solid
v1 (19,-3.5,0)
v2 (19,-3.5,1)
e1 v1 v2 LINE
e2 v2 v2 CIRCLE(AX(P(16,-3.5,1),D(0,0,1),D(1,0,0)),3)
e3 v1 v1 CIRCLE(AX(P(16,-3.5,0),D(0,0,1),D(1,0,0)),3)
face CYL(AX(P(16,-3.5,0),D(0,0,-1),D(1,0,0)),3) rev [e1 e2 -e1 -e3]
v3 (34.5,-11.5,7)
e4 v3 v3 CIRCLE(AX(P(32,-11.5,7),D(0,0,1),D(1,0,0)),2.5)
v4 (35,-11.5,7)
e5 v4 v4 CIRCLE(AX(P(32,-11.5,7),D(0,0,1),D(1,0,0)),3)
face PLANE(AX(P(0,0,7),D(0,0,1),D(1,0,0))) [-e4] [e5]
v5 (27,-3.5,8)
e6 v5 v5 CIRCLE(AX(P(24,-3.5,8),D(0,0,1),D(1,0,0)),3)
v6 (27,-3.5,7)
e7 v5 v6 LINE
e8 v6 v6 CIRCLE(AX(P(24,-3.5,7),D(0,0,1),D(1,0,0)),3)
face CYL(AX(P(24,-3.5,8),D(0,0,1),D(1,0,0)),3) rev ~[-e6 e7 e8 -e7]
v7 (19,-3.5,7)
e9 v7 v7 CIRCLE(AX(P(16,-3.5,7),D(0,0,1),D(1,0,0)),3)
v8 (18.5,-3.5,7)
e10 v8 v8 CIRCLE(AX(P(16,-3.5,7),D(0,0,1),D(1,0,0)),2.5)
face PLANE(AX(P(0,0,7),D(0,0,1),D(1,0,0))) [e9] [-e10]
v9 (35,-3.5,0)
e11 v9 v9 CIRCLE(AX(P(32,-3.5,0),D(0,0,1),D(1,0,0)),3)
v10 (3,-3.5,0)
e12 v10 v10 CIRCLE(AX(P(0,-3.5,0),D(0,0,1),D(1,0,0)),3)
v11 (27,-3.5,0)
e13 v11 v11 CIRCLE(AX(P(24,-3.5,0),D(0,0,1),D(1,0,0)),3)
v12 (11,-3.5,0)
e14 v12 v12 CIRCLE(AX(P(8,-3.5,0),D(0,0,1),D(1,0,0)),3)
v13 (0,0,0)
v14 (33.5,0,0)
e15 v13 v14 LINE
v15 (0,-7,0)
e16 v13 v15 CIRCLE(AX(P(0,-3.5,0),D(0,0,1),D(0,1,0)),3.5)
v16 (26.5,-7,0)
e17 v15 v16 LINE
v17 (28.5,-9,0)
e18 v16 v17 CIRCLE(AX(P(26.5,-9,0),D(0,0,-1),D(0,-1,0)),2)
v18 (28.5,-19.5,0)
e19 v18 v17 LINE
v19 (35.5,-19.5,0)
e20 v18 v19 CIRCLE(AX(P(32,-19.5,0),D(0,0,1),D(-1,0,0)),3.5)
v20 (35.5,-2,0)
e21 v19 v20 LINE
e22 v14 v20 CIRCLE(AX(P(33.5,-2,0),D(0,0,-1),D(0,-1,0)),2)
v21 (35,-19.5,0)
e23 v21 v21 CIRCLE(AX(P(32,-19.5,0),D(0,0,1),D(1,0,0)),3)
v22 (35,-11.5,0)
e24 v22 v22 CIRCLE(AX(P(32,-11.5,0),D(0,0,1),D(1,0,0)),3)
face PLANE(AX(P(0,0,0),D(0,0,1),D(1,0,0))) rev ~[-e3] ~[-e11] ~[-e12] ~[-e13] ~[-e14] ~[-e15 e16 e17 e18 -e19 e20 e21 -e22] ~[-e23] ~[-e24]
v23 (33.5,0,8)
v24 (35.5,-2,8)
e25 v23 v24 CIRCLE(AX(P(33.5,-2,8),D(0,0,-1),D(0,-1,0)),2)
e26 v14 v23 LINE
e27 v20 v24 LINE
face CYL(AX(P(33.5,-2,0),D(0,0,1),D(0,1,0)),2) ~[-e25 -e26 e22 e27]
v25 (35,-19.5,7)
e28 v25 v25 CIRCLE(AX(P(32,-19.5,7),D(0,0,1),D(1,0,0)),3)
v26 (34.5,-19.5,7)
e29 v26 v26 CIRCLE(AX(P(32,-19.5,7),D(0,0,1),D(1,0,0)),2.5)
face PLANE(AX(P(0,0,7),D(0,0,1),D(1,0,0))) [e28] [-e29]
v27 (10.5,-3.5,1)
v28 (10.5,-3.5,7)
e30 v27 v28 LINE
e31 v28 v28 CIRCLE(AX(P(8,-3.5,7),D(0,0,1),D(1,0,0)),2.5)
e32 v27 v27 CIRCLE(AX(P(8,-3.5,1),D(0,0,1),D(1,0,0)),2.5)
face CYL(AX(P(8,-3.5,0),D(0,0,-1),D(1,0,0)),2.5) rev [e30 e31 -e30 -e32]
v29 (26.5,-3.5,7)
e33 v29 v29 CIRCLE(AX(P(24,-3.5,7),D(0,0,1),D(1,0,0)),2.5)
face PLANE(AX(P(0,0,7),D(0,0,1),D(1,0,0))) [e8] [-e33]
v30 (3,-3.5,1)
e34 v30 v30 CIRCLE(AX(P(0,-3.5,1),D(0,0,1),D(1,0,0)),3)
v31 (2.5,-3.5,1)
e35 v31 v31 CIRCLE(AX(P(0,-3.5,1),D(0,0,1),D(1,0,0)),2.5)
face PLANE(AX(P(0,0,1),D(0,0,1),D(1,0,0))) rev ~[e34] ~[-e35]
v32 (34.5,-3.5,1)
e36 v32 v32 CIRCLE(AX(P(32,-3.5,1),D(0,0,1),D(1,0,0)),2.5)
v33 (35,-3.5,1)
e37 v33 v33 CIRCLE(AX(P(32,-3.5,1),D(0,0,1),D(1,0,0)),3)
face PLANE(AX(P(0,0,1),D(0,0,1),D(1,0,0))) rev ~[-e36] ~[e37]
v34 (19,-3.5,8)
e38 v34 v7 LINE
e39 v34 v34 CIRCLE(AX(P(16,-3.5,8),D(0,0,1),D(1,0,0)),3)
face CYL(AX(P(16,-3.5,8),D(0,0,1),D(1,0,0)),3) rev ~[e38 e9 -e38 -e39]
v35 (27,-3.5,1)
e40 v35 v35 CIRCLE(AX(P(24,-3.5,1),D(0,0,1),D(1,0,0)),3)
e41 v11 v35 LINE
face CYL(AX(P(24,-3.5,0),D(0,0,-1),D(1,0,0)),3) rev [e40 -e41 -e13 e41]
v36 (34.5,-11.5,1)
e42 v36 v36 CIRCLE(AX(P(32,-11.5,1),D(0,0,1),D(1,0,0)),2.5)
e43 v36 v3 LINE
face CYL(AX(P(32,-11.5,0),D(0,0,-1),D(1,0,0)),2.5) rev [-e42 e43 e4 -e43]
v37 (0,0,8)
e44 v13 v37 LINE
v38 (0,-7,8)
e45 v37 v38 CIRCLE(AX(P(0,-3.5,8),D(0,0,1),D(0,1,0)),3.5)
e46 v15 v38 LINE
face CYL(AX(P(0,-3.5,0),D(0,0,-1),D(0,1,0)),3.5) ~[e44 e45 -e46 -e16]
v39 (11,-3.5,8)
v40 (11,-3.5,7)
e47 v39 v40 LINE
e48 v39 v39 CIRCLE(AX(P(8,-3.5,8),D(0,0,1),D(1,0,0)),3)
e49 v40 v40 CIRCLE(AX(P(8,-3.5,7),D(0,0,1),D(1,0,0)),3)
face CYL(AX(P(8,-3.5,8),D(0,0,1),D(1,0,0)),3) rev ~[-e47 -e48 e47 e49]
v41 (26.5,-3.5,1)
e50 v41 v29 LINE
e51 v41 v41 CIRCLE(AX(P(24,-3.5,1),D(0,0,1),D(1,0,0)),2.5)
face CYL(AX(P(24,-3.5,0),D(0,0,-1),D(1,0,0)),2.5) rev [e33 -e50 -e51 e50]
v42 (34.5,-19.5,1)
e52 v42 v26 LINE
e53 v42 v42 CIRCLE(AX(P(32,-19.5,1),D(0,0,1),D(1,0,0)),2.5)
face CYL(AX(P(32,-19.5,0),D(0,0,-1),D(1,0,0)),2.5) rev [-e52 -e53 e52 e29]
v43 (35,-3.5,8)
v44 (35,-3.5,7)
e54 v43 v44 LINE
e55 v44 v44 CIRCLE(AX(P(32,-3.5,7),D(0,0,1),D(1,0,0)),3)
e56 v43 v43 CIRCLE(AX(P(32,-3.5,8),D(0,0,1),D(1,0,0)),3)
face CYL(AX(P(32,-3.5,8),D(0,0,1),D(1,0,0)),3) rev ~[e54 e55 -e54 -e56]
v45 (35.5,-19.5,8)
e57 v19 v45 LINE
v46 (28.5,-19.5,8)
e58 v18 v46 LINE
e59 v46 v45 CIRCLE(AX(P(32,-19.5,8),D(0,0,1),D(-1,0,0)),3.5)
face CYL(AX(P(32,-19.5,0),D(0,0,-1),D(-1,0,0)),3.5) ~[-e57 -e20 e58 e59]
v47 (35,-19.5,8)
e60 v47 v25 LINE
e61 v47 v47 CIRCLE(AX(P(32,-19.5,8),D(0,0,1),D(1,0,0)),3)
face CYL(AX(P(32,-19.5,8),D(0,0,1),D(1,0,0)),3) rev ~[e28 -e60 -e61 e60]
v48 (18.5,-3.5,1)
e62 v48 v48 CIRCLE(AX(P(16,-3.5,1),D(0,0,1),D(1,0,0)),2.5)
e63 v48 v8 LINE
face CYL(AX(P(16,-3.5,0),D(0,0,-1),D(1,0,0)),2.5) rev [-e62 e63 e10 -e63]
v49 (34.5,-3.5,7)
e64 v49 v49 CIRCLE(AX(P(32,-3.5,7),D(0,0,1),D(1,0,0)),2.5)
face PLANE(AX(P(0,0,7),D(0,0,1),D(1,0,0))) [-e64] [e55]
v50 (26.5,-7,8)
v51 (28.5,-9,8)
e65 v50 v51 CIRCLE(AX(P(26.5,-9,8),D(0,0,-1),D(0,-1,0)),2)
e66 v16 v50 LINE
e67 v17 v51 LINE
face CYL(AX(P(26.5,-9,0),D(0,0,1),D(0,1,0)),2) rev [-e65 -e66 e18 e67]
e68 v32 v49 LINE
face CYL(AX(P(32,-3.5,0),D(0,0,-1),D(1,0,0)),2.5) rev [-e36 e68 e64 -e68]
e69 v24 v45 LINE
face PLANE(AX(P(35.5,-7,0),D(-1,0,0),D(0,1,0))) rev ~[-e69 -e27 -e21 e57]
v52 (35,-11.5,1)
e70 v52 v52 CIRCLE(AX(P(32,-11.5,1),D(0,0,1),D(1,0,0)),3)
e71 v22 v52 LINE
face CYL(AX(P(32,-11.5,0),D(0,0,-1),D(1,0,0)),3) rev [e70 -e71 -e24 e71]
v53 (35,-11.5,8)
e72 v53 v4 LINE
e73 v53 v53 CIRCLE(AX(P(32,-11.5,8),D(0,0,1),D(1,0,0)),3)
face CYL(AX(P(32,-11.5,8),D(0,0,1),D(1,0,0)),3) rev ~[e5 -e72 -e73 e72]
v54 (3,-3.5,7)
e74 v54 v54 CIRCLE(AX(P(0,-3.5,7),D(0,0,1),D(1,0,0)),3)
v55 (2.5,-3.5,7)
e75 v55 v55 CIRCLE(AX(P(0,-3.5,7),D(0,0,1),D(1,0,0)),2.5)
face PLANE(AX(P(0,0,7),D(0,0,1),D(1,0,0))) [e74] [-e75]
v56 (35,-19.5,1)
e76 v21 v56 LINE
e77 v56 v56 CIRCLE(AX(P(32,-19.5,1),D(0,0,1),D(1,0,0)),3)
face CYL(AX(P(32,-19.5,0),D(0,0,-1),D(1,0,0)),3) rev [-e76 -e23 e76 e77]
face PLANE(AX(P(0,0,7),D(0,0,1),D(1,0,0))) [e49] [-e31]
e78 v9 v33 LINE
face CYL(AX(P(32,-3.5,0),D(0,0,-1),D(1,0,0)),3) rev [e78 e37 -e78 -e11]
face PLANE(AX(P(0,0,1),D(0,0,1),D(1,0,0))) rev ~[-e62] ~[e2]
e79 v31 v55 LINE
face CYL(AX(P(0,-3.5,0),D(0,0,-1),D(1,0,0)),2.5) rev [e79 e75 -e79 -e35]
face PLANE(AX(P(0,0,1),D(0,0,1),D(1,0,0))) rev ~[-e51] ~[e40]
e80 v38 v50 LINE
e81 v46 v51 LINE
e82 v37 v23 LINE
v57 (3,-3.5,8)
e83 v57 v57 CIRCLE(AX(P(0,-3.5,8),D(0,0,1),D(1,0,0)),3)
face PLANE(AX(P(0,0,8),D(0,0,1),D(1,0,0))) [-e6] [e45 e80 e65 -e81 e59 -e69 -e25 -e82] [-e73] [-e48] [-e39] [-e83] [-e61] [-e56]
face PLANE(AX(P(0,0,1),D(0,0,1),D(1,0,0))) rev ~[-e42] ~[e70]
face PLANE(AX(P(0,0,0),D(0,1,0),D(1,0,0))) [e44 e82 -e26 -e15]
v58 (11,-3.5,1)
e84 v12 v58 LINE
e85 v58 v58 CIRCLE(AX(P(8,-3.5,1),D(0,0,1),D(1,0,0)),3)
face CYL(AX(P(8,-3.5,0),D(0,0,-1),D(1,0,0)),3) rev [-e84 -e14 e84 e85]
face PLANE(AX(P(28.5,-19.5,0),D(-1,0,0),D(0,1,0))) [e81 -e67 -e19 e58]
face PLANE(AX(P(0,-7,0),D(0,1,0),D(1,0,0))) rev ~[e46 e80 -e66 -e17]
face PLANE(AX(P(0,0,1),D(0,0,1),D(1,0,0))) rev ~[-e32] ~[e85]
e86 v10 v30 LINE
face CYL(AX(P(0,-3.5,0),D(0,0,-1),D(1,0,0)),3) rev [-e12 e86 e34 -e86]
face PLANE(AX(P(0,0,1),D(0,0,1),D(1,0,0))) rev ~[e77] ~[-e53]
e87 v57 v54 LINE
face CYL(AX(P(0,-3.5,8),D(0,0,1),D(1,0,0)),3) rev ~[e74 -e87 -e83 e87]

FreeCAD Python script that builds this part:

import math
import FreeCAD as App
import Part
import Sketcher
from FreeCAD import Vector
Q = App.Units.Quantity


def edges_at(feature, points):
    """Names of the edges that pass closest to the given points."""
    edges = feature.Shape.Edges
    near = lambda p: min(range(len(edges)), key=lambda i: edges[i].distToShape(Part.Vertex(*p))[0])
    return sorted({f"Edge{near(p) + 1}" for p in points})

doc = App.newDocument("Part")
body = doc.addObject("PartDesign::Body", "Body")

# Sketch on XY plane
sketch1 = body.newObject("Sketcher::SketchObject", "Sketch")
sketch1.AttachmentSupport = (doc.getObject("XY_Plane"), [""])
sketch1.MapMode = "FlatFace"
sketch1.addGeometry([
    Part.LineSegment(Vector(35.5, 0, 0), Vector(0, 0, 0)),  # 0
    Part.ArcOfCircle(Part.Circle(Vector(0, -3.5, 0), Vector(0, 0, 1), 3.5), math.radians(90), math.radians(270)),  # 1
    Part.LineSegment(Vector(0, -7, 0), Vector(28.5, -7, 0)),  # 2
    Part.LineSegment(Vector(28.5, -7, 0), Vector(28.5, -19.5, 0)),  # 3
    Part.ArcOfCircle(Part.Circle(Vector(32, -19.5, 0), Vector(0, 0, 1), 3.5), math.radians(180), math.radians(360)),  # 4
    Part.LineSegment(Vector(35.5, -19.5, 0), Vector(35.5, 0, 0)),  # 5
    Part.Circle(Vector(32, -19.5, 0), Vector(0, 0, 1), 2.5),  # 6
    Part.Circle(Vector(0, -3.5, 0), Vector(0, 0, 1), 2.5),  # 7
    Part.Circle(Vector(8, -3.5, 0), Vector(0, 0, 1), 2.5),  # 8
    Part.Circle(Vector(32, -11.5, 0), Vector(0, 0, 1), 2.5),  # 9
    Part.Circle(Vector(16, -3.5, 0), Vector(0, 0, 1), 2.5),  # 10
    Part.Circle(Vector(24, -3.5, 0), Vector(0, 0, 1), 2.5),  # 11
    Part.Circle(Vector(32, -3.5, 0), Vector(0, 0, 1), 2.5),  # 12
], False)
sketch1.addConstraint([
    Sketcher.Constraint("Tangent", 0, 2, 1, 1),
    Sketcher.Constraint("Tangent", 1, 2, 2, 1),
    Sketcher.Constraint("Coincident", 2, 2, 3, 1),
    Sketcher.Constraint("Tangent", 3, 2, 4, 1),
    Sketcher.Constraint("Tangent", 4, 2, 5, 1),
    Sketcher.Constraint("Coincident", 5, 2, 0, 1),
    Sketcher.Constraint("Horizontal", 0),
    Sketcher.Constraint("Horizontal", 2),
    Sketcher.Constraint("Vertical", 3),
    Sketcher.Constraint("Vertical", 5),
    Sketcher.Constraint("Coincident", 0, 2, -1, 1),
    Sketcher.Constraint("Coincident", 6, 3, 4, 3),
    Sketcher.Constraint("Coincident", 7, 3, 1, 3),
    Sketcher.Constraint("Equal", 1, 4),
    Sketcher.Constraint("Equal", 6, 7),
    Sketcher.Constraint("Equal", 7, 8),
    Sketcher.Constraint("Equal", 8, 9),
    Sketcher.Constraint("Equal", 9, 10),
    Sketcher.Constraint("Equal", 10, 11),
    Sketcher.Constraint("Equal", 11, 12),
    Sketcher.Constraint("Horizontal", 7, 3, 8, 3),
    Sketcher.Constraint("Horizontal", 8, 3, 10, 3),
    Sketcher.Constraint("Horizontal", 10, 3, 11, 3),
    Sketcher.Constraint("Horizontal", 11, 3, 12, 3),
    Sketcher.Constraint("Vertical", 6, 3, 9, 3),
    Sketcher.Constraint("Vertical", 9, 3, 12, 3),
    Sketcher.Constraint("Diameter", 6, Q("5 mm")),
    Sketcher.Constraint("Radius", 1, Q("3.5 mm")),
    Sketcher.Constraint("DistanceX", 0, 2, 0, 1, Q("35.5 mm")),
    Sketcher.Constraint("DistanceY", 3, 2, 3, 1, Q("12.5 mm")),
    Sketcher.Constraint("DistanceX", -1, 1, 8, 3, Q("8 mm")),
    Sketcher.Constraint("DistanceX", -1, 1, 10, 3, Q("16 mm")),
    Sketcher.Constraint("DistanceX", -1, 1, 11, 3, Q("24 mm")),
    Sketcher.Constraint("DistanceY", 4, 3, 9, 3, Q("8 mm")),
])
pad1 = body.newObject("PartDesign::Pad", "Pad")
pad1.Profile = sketch1
pad1.Length = 8

# Sketch on XY plane
sketch2 = body.newObject("Sketcher::SketchObject", "Sketch001")
sketch2.AttachmentSupport = (doc.getObject("XY_Plane"), [""])
sketch2.MapMode = "FlatFace"
sketch2.addGeometry([
    Part.Circle(Vector(0, -3.5, 0), Vector(0, 0, 1), 3),  # 0
    Part.Circle(Vector(0, -3.5, 0), Vector(0, 0, 1), 2.5),  # 1
    Part.Circle(Vector(32, -3.5, 0), Vector(0, 0, 1), 3),  # 2
    Part.Circle(Vector(32, -3.5, 0), Vector(0, 0, 1), 2.5),  # 3
    Part.Circle(Vector(8, -3.5, 0), Vector(0, 0, 1), 3),  # 4
    Part.Circle(Vector(8, -3.5, 0), Vector(0, 0, 1), 2.5),  # 5
    Part.Circle(Vector(16, -3.5, 0), Vector(0, 0, 1), 3),  # 6
    Part.Circle(Vector(16, -3.5, 0), Vector(0, 0, 1), 2.5),  # 7
    Part.Circle(Vector(24, -3.5, 0), Vector(0, 0, 1), 3),  # 8
    Part.Circle(Vector(24, -3.5, 0), Vector(0, 0, 1), 2.5),  # 9
    Part.Circle(Vector(32, -19.5, 0), Vector(0, 0, 1), 3),  # 10
    Part.Circle(Vector(32, -19.5, 0), Vector(0, 0, 1), 2.5),  # 11
    Part.Circle(Vector(32, -11.5, 0), Vector(0, 0, 1), 3),  # 12
    Part.Circle(Vector(32, -11.5, 0), Vector(0, 0, 1), 2.5),  # 13
], False)
sketch2.addConstraint([
    Sketcher.Constraint("Coincident", 1, 3, 0, 3),
    Sketcher.Constraint("Coincident", 3, 3, 2, 3),
    Sketcher.Constraint("Coincident", 5, 3, 4, 3),
    Sketcher.Constraint("Coincident", 7, 3, 6, 3),
    Sketcher.Constraint("Coincident", 9, 3, 8, 3),
    Sketcher.Constraint("Coincident", 11, 3, 10, 3),
    Sketcher.Constraint("Coincident", 13, 3, 12, 3),
    Sketcher.Constraint("Equal", 0, 2),
    Sketcher.Constraint("Equal", 1, 3),
    Sketcher.Constraint("Equal", 2, 4),
    Sketcher.Constraint("Equal", 3, 5),
    Sketcher.Constraint("Equal", 4, 6),
    Sketcher.Constraint("Equal", 5, 7),
    Sketcher.Constraint("Equal", 6, 8),
    Sketcher.Constraint("Equal", 7, 9),
    Sketcher.Constraint("Equal", 8, 10),
    Sketcher.Constraint("Equal", 9, 11),
    Sketcher.Constraint("Equal", 10, 12),
    Sketcher.Constraint("Equal", 11, 13),
    Sketcher.Constraint("PointOnObject", 0, 3, -2),
    Sketcher.Constraint("Horizontal", 1, 3, 2, 3),
    Sketcher.Constraint("Horizontal", 3, 3, 4, 3),
    Sketcher.Constraint("Horizontal", 5, 3, 6, 3),
    Sketcher.Constraint("Horizontal", 7, 3, 8, 3),
    Sketcher.Constraint("Vertical", 3, 3, 10, 3),
    Sketcher.Constraint("Vertical", 11, 3, 12, 3),
    Sketcher.Constraint("Diameter", 0, Q("6 mm")),
    Sketcher.Constraint("Diameter", 1, Q("5 mm")),
    Sketcher.Constraint("DistanceX", -1, 1, 2, 3, Q("32 mm")),
    Sketcher.Constraint("DistanceX", -1, 1, 4, 3, Q("8 mm")),
    Sketcher.Constraint("DistanceX", -1, 1, 6, 3, Q("16 mm")),
    Sketcher.Constraint("DistanceX", -1, 1, 8, 3, Q("24 mm")),
    Sketcher.Constraint("DistanceY", 10, 3, 2, 3, Q("16 mm")),
    Sketcher.Constraint("DistanceY", 12, 3, 2, 3, Q("8 mm")),
    Sketcher.Constraint("DistanceY", 0, 3, -1, 1, Q("3.5 mm")),
])
pocket1 = body.newObject("PartDesign::Pocket", "Pocket")
pocket1.Profile = sketch2
pocket1.Length = 1
pocket1.Reversed = True

# Sketch on XY plane
sketch3 = body.newObject("Sketcher::SketchObject", "Sketch002")
sketch3.AttachmentSupport = (doc.getObject("XY_Plane"), [""])
sketch3.MapMode = "FlatFace"
sketch3.AttachmentOffset = App.Placement(Vector(0, 0, 8), App.Rotation())
sketch3.addGeometry([
    Part.Circle(Vector(0, -3.5, 0), Vector(0, 0, 1), 3),  # 0
    Part.Circle(Vector(0, -3.5, 0), Vector(0, 0, 1), 2.5),  # 1
    Part.Circle(Vector(8, -3.5, 0), Vector(0, 0, 1), 3),  # 2
    Part.Circle(Vector(8, -3.5, 0), Vector(0, 0, 1), 2.5),  # 3
    Part.Circle(Vector(16, -3.5, 0), Vector(0, 0, 1), 3),  # 4
    Part.Circle(Vector(16, -3.5, 0), Vector(0, 0, 1), 2.5),  # 5
    Part.Circle(Vector(24, -3.5, 0), Vector(0, 0, 1), 3),  # 6
    Part.Circle(Vector(24, -3.5, 0), Vector(0, 0, 1), 2.5),  # 7
    Part.Circle(Vector(32, -3.5, 0), Vector(0, 0, 1), 3),  # 8
    Part.Circle(Vector(32, -3.5, 0), Vector(0, 0, 1), 2.5),  # 9
    Part.Circle(Vector(32, -11.5, 0), Vector(0, 0, 1), 3),  # 10
    Part.Circle(Vector(32, -11.5, 0), Vector(0, 0, 1), 2.5),  # 11
    Part.Circle(Vector(32, -19.5, 0), Vector(0, 0, 1), 3),  # 12
    Part.Circle(Vector(32, -19.5, 0), Vector(0, 0, 1), 2.5),  # 13
], False)
sketch3.addConstraint([
    Sketcher.Constraint("Coincident", 1, 3, 0, 3),
    Sketcher.Constraint("Coincident", 3, 3, 2, 3),
    Sketcher.Constraint("Coincident", 5, 3, 4, 3),
    Sketcher.Constraint("Coincident", 7, 3, 6, 3),
    Sketcher.Constraint("Coincident", 9, 3, 8, 3),
    Sketcher.Constraint("Coincident", 11, 3, 10, 3),
    Sketcher.Constraint("Coincident", 13, 3, 12, 3),
    Sketcher.Constraint("Equal", 0, 2),
    Sketcher.Constraint("Equal", 1, 3),
    Sketcher.Constraint("Equal", 2, 4),
    Sketcher.Constraint("Equal", 3, 5),
    Sketcher.Constraint("Equal", 4, 6),
    Sketcher.Constraint("Equal", 5, 7),
    Sketcher.Constraint("Equal", 6, 8),
    Sketcher.Constraint("Equal", 7, 9),
    Sketcher.Constraint("Equal", 8, 10),
    Sketcher.Constraint("Equal", 9, 11),
    Sketcher.Constraint("Equal", 10, 12),
    Sketcher.Constraint("Equal", 11, 13),
    Sketcher.Constraint("PointOnObject", 0, 3, -2),
    Sketcher.Constraint("Horizontal", 1, 3, 2, 3),
    Sketcher.Constraint("Horizontal", 3, 3, 4, 3),
    Sketcher.Constraint("Horizontal", 5, 3, 6, 3),
    Sketcher.Constraint("Horizontal", 7, 3, 8, 3),
    Sketcher.Constraint("Vertical", 9, 3, 10, 3),
    Sketcher.Constraint("Vertical", 11, 3, 12, 3),
    Sketcher.Constraint("Diameter", 0, Q("6 mm")),
    Sketcher.Constraint("Diameter", 1, Q("5 mm")),
    Sketcher.Constraint("DistanceX", -1, 1, 2, 3, Q("8 mm")),
    Sketcher.Constraint("DistanceX", -1, 1, 4, 3, Q("16 mm")),
    Sketcher.Constraint("DistanceX", -1, 1, 6, 3, Q("24 mm")),
    Sketcher.Constraint("DistanceX", -1, 1, 8, 3, Q("32 mm")),
    Sketcher.Constraint("DistanceY", 10, 3, 8, 3, Q("8 mm")),
    Sketcher.Constraint("DistanceY", 12, 3, 10, 3, Q("8 mm")),
    Sketcher.Constraint("DistanceY", 0, 3, -1, 1, Q("3.5 mm")),
])
pocket2 = body.newObject("PartDesign::Pocket", "Pocket001")
pocket2.Profile = sketch3
pocket2.Length = 1
doc.recompute()

fillet = body.newObject("PartDesign::Fillet", "Fillet")
fillet.Base = (pocket2, edges_at(pocket2, [(35.5, 0, 4)]))
fillet.Radius = 2
doc.recompute()

fillet2 = body.newObject("PartDesign::Fillet", "Fillet001")
fillet2.Base = (fillet, edges_at(fillet, [(28.5, -7, 4)]))
fillet2.Radius = 2

doc.recompute()
